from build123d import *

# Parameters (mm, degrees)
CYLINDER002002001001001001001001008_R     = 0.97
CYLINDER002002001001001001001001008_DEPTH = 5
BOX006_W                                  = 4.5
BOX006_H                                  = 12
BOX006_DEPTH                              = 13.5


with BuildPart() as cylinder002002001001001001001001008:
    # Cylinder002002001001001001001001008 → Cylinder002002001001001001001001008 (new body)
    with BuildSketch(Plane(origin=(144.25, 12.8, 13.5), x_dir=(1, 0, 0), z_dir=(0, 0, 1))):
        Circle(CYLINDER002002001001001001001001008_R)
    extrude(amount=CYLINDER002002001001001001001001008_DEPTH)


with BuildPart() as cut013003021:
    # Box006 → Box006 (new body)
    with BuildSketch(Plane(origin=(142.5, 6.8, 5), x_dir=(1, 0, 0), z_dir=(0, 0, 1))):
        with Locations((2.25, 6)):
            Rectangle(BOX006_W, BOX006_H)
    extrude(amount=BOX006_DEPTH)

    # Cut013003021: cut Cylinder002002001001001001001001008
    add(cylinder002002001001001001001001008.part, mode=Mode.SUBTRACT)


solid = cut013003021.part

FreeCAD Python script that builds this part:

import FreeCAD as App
import Part
import Sketcher
from FreeCAD import Vector

doc = App.newDocument("Part")
body = doc.addObject("PartDesign::Body", "Body")

sketch1 = doc.addObject("Sketcher::SketchObject", "Sketch")
body.addObject(sketch1)
sketch1.AttachmentSupport = (doc.XY_Plane, [""])
sketch1.MapMode = "FlatFace"
sketch1.AttachmentOffset = App.Placement(Vector(0, 0, 13.5), App.Rotation())
sketch1.addGeometry(Part.Circle(Vector(144.25, 12.8, 0), Vector(0, 0, 1), 0.97), False)
sketch1.addConstraint(Sketcher.Constraint("Diameter", 0, 1.94))
sketch1.addConstraint(Sketcher.Constraint("DistanceY", -1, 1, 0, 3, 12.8))
sketch1.addConstraint(Sketcher.Constraint("DistanceX", -1, 1, 0, 3, 144.25))
pad1 = doc.addObject("PartDesign::Pad", "Pad")
body.addObject(pad1)
pad1.Profile = sketch1
pad1.Length = 5
body2 = doc.addObject("PartDesign::Body", "Body001")

sketch2 = doc.addObject("Sketcher::SketchObject", "Sketch001")
body2.addObject(sketch2)
sketch2.AttachmentSupport = (doc.getObject("XY_Plane001"), [""])
sketch2.MapMode = "FlatFace"
sketch2.AttachmentOffset = App.Placement(Vector(0, 0, 5), App.Rotation())
sketch2.addGeometry(Part.LineSegment(Vector(142.5, 18.8, 0), Vector(142.5, 6.8, 0)), False)
sketch2.addGeometry(Part.LineSegment(Vector(142.5, 6.8, 0), Vector(147, 6.8, 0)), False)
sketch2.addGeometry(Part.LineSegment(Vector(147, 6.8, 0), Vector(147, 18.8, 0)), False)
sketch2.addGeometry(Part.LineSegment(Vector(147, 18.8, 0), Vector(142.5, 18.8, 0)), False)
sketch2.addConstraint(Sketcher.Constraint("Coincident", 0, 2, 1, 1))
sketch2.addConstraint(Sketcher.Constraint("Coincident", 1, 2, 2, 1))
sketch2.addConstraint(Sketcher.Constraint("Coincident", 2, 2, 3, 1))
sketch2.addConstraint(Sketcher.Constraint("Coincident", 3, 2, 0, 1))
sketch2.addConstraint(Sketcher.Constraint("Vertical", 0))
sketch2.addConstraint(Sketcher.Constraint("Horizontal", 1))
sketch2.addConstraint(Sketcher.Constraint("Vertical", 2))
sketch2.addConstraint(Sketcher.Constraint("Horizontal", 3))
sketch2.addConstraint(Sketcher.Constraint("DistanceY", 0, 2, 0, 1, 12.0))
sketch2.addConstraint(Sketcher.Constraint("DistanceX", 1, 1, 1, 2, 4.5))
sketch2.addConstraint(Sketcher.Constraint("DistanceX", -1, 1, 1, 2, 147.0))
sketch2.addConstraint(Sketcher.Constraint("DistanceY", -1, 1, 0, 2, 6.8))
pad2 = doc.addObject("PartDesign::Pad", "Pad001")
body2.addObject(pad2)
pad2.Profile = sketch2
pad2.Length = 13.5
doc.recompute()

boolean = doc.addObject("PartDesign::Boolean", "Boolean")
body2.addObject(boolean)
boolean.Type = "Cut"
boolean.addObjects([body])

doc.recompute()
